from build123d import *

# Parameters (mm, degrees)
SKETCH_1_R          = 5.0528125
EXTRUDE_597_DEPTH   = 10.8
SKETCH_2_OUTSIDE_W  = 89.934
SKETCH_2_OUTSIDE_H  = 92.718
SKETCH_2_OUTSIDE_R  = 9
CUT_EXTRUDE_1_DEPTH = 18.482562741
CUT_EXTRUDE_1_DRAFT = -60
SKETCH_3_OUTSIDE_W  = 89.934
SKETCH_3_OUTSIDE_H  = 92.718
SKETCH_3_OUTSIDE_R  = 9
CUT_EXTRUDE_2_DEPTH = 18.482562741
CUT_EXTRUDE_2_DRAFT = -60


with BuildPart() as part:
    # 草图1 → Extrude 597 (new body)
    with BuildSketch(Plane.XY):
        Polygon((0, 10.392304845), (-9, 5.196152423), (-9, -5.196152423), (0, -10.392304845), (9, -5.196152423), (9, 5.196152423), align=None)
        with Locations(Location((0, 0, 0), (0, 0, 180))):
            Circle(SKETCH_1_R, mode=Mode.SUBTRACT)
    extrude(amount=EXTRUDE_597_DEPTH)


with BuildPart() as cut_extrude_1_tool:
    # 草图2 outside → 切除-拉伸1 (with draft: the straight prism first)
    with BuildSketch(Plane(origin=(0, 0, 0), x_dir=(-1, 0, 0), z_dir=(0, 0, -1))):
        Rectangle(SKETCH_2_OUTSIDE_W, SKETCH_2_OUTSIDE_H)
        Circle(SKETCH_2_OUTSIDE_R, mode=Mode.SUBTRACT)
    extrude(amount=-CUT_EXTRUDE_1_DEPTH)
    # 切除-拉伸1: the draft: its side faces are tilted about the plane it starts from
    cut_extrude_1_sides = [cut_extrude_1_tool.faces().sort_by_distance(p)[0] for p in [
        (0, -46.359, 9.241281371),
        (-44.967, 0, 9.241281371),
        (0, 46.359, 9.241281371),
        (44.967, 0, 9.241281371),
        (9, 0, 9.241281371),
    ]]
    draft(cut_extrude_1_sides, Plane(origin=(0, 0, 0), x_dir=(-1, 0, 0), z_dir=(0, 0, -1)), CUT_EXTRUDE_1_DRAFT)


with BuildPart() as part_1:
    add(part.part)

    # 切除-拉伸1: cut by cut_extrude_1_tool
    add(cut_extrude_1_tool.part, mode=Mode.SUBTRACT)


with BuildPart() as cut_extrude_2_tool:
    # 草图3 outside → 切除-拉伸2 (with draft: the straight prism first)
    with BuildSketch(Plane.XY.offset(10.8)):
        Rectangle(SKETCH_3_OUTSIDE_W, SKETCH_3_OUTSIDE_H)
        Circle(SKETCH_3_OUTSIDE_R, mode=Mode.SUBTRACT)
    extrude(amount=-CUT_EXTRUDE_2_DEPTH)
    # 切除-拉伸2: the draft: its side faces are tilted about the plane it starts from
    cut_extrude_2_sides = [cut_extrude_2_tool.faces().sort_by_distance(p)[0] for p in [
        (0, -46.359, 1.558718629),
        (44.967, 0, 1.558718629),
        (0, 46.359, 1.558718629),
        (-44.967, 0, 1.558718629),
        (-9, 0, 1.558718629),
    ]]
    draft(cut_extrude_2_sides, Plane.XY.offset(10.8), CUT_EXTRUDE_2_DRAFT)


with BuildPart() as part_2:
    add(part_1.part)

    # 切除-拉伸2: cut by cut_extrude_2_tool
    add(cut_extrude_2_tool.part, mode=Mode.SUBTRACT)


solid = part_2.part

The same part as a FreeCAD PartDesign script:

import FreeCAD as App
import Part
import Sketcher
from FreeCAD import Vector
Q = App.Units.Quantity


def faces_at(feature, points):
    """Names of the faces that lie closest to the given points."""
    faces = feature.Shape.Faces
    near = lambda p: min(range(len(faces)), key=lambda i: faces[i].distToShape(Part.Vertex(*p))[0])
    return sorted({f"Face{near(p) + 1}" for p in points})

doc = App.newDocument("Part")
body = doc.addObject("PartDesign::Body", "Body")

# Sketch on XY plane
sketch1 = body.newObject("Sketcher::SketchObject", "Sketch")
sketch1.AttachmentSupport = (doc.getObject("XY_Plane"), [""])
sketch1.MapMode = "FlatFace"
sketch1.addGeometry([
    Part.LineSegment(Vector(0, 10.392305, 0), Vector(-9, 5.196152, 0)),  # 0
    Part.LineSegment(Vector(-9, 5.196152, 0), Vector(-9, -5.196152, 0)),  # 1
    Part.LineSegment(Vector(-9, -5.196152, 0), Vector(0, -10.392305, 0)),  # 2
    Part.LineSegment(Vector(0, -10.392305, 0), Vector(9, -5.196152, 0)),  # 3
    Part.LineSegment(Vector(9, -5.196152, 0), Vector(9, 5.196152, 0)),  # 4
    Part.LineSegment(Vector(9, 5.196152, 0), Vector(0, 10.392305, 0)),  # 5
    Part.Circle(Vector(0, 0, 0), Vector(0, 0, 1), 5.052812),  # 6
], False)
sketch1.addConstraint([
    Sketcher.Constraint("Coincident", 0, 2, 1, 1),
    Sketcher.Constraint("Coincident", 1, 2, 2, 1),
    Sketcher.Constraint("Coincident", 2, 2, 3, 1),
    Sketcher.Constraint("Coincident", 3, 2, 4, 1),
    Sketcher.Constraint("Coincident", 4, 2, 5, 1),
    Sketcher.Constraint("Coincident", 5, 2, 0, 1),
    Sketcher.Constraint("Vertical", 1),
    Sketcher.Constraint("Vertical", 4),
    Sketcher.Constraint("Coincident", 6, 3, -1, 1),
    Sketcher.Constraint("Symmetric", 0, 2, 3, 2, -1, 1),
    Sketcher.Constraint("Symmetric", 2, 2, 5, 2, -1, 1),
    Sketcher.Constraint("PointOnObject", 2, 2, -2),
    Sketcher.Constraint("Parallel", 2, 5),
    Sketcher.Constraint("Horizontal", 1, 2, 3, 2),
    Sketcher.Constraint("Angle", 0, Q("-150 deg")),
    Sketcher.Constraint("DistanceX", 0, 2, -1, 1, 9.0),
    Sketcher.Constraint("Diameter", 6, 10.105625),
    Sketcher.Constraint("DistanceY", 1, 2, 1, 1, 10.392305),
])
pad1 = body.newObject("PartDesign::Pad", "Pad")
pad1.Profile = sketch1
pad1.Length = 10.8
body2 = doc.addObject("PartDesign::Body", "Body001")

# Sketch on XY plane
sketch2 = body2.newObject("Sketcher::SketchObject", "Sketch001")
sketch2.AttachmentSupport = (doc.getObject("XY_Plane001"), [""])
sketch2.MapMode = "FlatFace"
sketch2.addGeometry([
    Part.LineSegment(Vector(44.967, 46.359, 0), Vector(44.967, -46.359, 0)),  # 0
    Part.LineSegment(Vector(44.967, -46.359, 0), Vector(-44.967, -46.359, 0)),  # 1
    Part.LineSegment(Vector(-44.967, -46.359, 0), Vector(-44.967, 46.359, 0)),  # 2
    Part.LineSegment(Vector(-44.967, 46.359, 0), Vector(44.967, 46.359, 0)),  # 3
    Part.Circle(Vector(0, 0, 0), Vector(0, 0, 1), 9),  # 4
], False)
sketch2.addConstraint([
    Sketcher.Constraint("Coincident", 0, 2, 1, 1),
    Sketcher.Constraint("Coincident", 1, 2, 2, 1),
    Sketcher.Constraint("Coincident", 2, 2, 3, 1),
    Sketcher.Constraint("Coincident", 3, 2, 0, 1),
    Sketcher.Constraint("Vertical", 0),
    Sketcher.Constraint("Horizontal", 1),
    Sketcher.Constraint("Vertical", 2),
    Sketcher.Constraint("Horizontal", 3),
    Sketcher.Constraint("Coincident", 4, 3, -1, 1),
    Sketcher.Constraint("Symmetric", 0, 2, 2, 2, -1, 1),
    Sketcher.Constraint("Diameter", 4, 18.0),
    Sketcher.Constraint("DistanceX", 1, 2, 1, 1, 89.934),
    Sketcher.Constraint("DistanceY", 0, 2, 0, 1, 92.718),
])
pad2 = body2.newObject("PartDesign::Pad", "Pad001")
pad2.Profile = sketch2
pad2.Length = 18.482563
doc.recompute()

draft = body2.newObject("PartDesign::Draft", "Draft")
draft.Base = (pad2, faces_at(pad2, [
    (0, -46.359, 9.241),
    (-44.967, 0, 9.241),
    (0, 46.359, 9.241),
    (44.967, 0, 9.241),
    (9, 0, 9.241),
]))
draft.NeutralPlane = (doc.getObject("XY_Plane001"), [""])
draft.Angle = 60
draft.Reversed = False
doc.recompute()

boolean = body.newObject("PartDesign::Boolean", "Boolean")
boolean.Type = "Cut"
boolean.addObjects([body2])
body3 = doc.addObject("PartDesign::Body", "Body002")

# Sketch on XY plane
sketch3 = body3.newObject("Sketcher::SketchObject", "Sketch002")
sketch3.AttachmentSupport = (doc.getObject("XY_Plane002"), [""])
sketch3.MapMode = "FlatFace"
sketch3.AttachmentOffset = App.Placement(Vector(0, 0, 10.8), App.Rotation())
sketch3.addGeometry([
    Part.LineSegment(Vector(-44.967, 46.359, 0), Vector(-44.967, -46.359, 0)),  # 0
    Part.LineSegment(Vector(-44.967, -46.359, 0), Vector(44.967, -46.359, 0)),  # 1
    Part.LineSegment(Vector(44.967, -46.359, 0), Vector(44.967, 46.359, 0)),  # 2
    Part.LineSegment(Vector(44.967, 46.359, 0), Vector(-44.967, 46.359, 0)),  # 3
    Part.Circle(Vector(0, 0, 0), Vector(0, 0, 1), 9),  # 4
], False)
sketch3.addConstraint([
    Sketcher.Constraint("Coincident", 0, 2, 1, 1),
    Sketcher.Constraint("Coincident", 1, 2, 2, 1),
    Sketcher.Constraint("Coincident", 2, 2, 3, 1),
    Sketcher.Constraint("Coincident", 3, 2, 0, 1),
    Sketcher.Constraint("Vertical", 0),
    Sketcher.Constraint("Horizontal", 1),
    Sketcher.Constraint("Vertical", 2),
    Sketcher.Constraint("Horizontal", 3),
    Sketcher.Constraint("Coincident", 4, 3, -1, 1),
    Sketcher.Constraint("Symmetric", 0, 2, 2, 2, -1, 1),
    Sketcher.Constraint("Diameter", 4, 18.0),
    Sketcher.Constraint("DistanceX", 1, 1, 1, 2, 89.934),
    Sketcher.Constraint("DistanceY", 0, 2, 0, 1, 92.718),
])
pad3 = body3.newObject("PartDesign::Pad", "Pad002")
pad3.Profile = sketch3
pad3.Length = 18.482563
pad3.Reversed = True
doc.recompute()

datumplane = body3.newObject("PartDesign::Plane", "DatumPlane")
datumplane.AttachmentSupport = (doc.getObject("XY_Plane002"), [""])
datumplane.MapMode = "FlatFace"
datumplane.AttachmentOffset = App.Placement(Vector(0, 0, 10.8), App.Rotation())
draft2 = body3.newObject("PartDesign::Draft", "Draft001")
draft2.Base = (pad3, faces_at(pad3, [
    (0, -46.359, 1.559),
    (44.967, 0, 1.559),
    (0, 46.359, 1.559),
    (-44.967, 0, 1.559),
    (-9, 0, 1.559),
]))
draft2.NeutralPlane = (datumplane, [""])
draft2.Angle = 60
draft2.Reversed = True
doc.recompute()

boolean2 = body.newObject("PartDesign::Boolean", "Boolean001")
boolean2.Type = "Cut"
boolean2.addObjects([body3])

doc.recompute()
